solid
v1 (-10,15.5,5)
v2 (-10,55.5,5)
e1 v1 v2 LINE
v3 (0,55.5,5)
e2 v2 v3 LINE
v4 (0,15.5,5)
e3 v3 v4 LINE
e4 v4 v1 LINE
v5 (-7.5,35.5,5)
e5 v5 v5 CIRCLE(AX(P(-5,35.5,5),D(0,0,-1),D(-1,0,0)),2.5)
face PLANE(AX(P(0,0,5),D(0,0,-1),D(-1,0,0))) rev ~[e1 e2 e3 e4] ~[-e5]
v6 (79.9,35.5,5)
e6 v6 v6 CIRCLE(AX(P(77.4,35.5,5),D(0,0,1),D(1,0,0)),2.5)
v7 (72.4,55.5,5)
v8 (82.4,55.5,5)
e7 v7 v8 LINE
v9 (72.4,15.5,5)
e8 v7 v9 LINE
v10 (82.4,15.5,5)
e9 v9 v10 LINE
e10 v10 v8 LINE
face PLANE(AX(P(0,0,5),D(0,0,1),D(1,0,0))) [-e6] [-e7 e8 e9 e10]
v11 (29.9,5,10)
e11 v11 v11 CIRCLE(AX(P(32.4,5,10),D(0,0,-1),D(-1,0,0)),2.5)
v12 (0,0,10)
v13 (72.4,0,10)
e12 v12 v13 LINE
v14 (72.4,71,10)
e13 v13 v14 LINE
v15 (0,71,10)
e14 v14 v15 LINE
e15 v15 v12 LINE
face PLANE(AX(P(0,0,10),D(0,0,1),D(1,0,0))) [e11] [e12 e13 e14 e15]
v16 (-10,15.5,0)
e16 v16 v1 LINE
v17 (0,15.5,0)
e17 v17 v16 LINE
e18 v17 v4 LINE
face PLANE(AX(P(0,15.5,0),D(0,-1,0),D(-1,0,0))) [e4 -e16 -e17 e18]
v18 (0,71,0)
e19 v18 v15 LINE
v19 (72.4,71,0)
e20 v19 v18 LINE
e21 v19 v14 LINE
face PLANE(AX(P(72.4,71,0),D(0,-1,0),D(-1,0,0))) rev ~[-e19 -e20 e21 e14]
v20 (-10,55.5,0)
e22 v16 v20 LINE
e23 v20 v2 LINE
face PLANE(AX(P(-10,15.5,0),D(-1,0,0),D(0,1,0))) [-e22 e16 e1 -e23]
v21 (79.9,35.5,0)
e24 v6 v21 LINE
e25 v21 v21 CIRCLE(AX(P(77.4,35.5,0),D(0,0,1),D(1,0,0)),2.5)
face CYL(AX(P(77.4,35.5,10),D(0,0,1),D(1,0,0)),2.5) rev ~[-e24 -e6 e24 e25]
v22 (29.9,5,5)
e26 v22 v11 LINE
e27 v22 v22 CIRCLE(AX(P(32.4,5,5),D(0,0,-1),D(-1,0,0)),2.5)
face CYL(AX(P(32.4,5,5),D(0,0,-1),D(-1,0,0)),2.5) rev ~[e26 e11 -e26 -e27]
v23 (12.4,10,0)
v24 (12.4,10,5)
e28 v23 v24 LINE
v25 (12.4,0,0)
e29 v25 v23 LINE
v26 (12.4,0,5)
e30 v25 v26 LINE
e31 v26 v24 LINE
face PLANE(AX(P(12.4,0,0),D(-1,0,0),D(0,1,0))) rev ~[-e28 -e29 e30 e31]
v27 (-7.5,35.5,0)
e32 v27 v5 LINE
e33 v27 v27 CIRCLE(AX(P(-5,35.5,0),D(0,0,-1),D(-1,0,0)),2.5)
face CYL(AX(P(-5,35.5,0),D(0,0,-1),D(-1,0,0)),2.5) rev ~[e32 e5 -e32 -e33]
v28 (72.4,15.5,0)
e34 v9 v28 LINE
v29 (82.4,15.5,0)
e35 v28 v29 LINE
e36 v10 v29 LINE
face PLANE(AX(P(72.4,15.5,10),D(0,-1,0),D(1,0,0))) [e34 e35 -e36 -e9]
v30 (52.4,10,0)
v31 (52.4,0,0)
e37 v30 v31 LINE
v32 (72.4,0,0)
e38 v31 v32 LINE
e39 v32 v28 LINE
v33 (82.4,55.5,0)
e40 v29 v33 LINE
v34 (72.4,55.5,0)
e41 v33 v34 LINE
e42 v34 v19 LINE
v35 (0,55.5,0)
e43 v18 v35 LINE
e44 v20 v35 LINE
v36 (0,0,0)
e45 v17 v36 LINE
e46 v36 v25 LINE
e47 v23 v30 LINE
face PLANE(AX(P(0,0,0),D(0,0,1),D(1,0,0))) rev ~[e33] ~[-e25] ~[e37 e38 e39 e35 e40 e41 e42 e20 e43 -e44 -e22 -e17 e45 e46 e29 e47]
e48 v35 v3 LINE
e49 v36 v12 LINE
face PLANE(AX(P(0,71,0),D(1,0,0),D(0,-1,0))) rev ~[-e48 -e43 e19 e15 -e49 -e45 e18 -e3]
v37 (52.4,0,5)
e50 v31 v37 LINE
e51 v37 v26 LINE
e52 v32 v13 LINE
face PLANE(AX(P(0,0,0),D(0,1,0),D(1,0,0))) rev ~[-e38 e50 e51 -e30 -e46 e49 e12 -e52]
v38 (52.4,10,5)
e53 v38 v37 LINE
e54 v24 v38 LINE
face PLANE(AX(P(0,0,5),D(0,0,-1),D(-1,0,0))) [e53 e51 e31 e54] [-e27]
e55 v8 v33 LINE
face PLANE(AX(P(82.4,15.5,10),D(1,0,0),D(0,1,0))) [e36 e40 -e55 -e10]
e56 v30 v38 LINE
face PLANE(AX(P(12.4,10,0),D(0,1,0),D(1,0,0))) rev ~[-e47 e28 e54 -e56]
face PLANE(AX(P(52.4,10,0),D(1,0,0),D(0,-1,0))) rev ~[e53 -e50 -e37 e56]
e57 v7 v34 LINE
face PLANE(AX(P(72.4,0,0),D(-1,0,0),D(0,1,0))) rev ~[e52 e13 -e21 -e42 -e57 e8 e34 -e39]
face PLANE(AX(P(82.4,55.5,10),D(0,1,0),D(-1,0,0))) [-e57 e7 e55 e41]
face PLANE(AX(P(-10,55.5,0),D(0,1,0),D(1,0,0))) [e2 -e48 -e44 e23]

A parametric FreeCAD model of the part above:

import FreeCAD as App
import Part
import Sketcher
from FreeCAD import Vector

doc = App.newDocument("Part")
body = doc.addObject("PartDesign::Body", "Body")

# Sketch on XY plane
sketch1 = body.newObject("Sketcher::SketchObject", "Sketch")
sketch1.AttachmentSupport = (doc.getObject("XY_Plane"), [""])
sketch1.MapMode = "FlatFace"
sketch1.addGeometry([
    Part.LineSegment(Vector(0, 71, 0), Vector(0, 0, 0)),
    Part.LineSegment(Vector(0, 0, 0), Vector(72, 0, 0)),
    Part.LineSegment(Vector(72, 0, 0), Vector(72, 71, 0)),
    Part.LineSegment(Vector(72, 71, 0), Vector(0, 71, 0)),
], False)
sketch1.addConstraint([
    Sketcher.Constraint("Coincident", 0, 2, 1, 1),
    Sketcher.Constraint("Coincident", 1, 2, 2, 1),
    Sketcher.Constraint("Coincident", 2, 2, 3, 1),
    Sketcher.Constraint("Coincident", 3, 2, 0, 1),
    Sketcher.Constraint("Vertical", 0),
    Sketcher.Constraint("Horizontal", 1),
    Sketcher.Constraint("Vertical", 2),
    Sketcher.Constraint("Horizontal", 3),
    Sketcher.Constraint("Coincident", 0, 2, -1, 1),
    Sketcher.Constraint("DistanceY", 0, 2, 0, 1, 71.0),
    Sketcher.Constraint("DistanceX", 1, 1, 1, 2, 72.4),
])
pad1 = body.newObject("PartDesign::Pad", "Pad")
pad1.Profile = sketch1
pad1.Length = 10

# Sketch on XY plane
sketch2 = body.newObject("Sketcher::SketchObject", "Sketch001")
sketch2.AttachmentSupport = (doc.getObject("XY_Plane"), [""])
sketch2.MapMode = "FlatFace"
sketch2.AttachmentOffset = App.Placement(Vector(0, 0, 10), App.Rotation())
sketch2.addGeometry([
    Part.LineSegment(Vector(72.4, 55.5, 0), Vector(72.4, 15.5, 0)),  # 0
    Part.LineSegment(Vector(72.4, 15.5, 0), Vector(82.4, 15.5, 0)),  # 1
    Part.LineSegment(Vector(82.4, 15.5, 0), Vector(82.4, 55.5, 0)),  # 2
    Part.LineSegment(Vector(82.4, 55.5, 0), Vector(72.4, 55.5, 0)),  # 3
    Part.Circle(Vector(77.4, 35.5, 0), Vector(0, 0, 1), 2.5),  # 4
], False)
sketch2.addConstraint([
    Sketcher.Constraint("Coincident", 0, 2, 1, 1),
    Sketcher.Constraint("Coincident", 1, 2, 2, 1),
    Sketcher.Constraint("Coincident", 2, 2, 3, 1),
    Sketcher.Constraint("Coincident", 3, 2, 0, 1),
    Sketcher.Constraint("Vertical", 0),
    Sketcher.Constraint("Horizontal", 1),
    Sketcher.Constraint("Vertical", 2),
    Sketcher.Constraint("Horizontal", 3),
    Sketcher.Constraint("Diameter", 4, 5.0),
    Sketcher.Constraint("DistanceX", 1, 1, 1, 2, 10.0),
    Sketcher.Constraint("DistanceY", 0, 2, 0, 1, 40.0),
    Sketcher.Constraint("DistanceX", 0, 2, 4, 3, 5.0),
    Sketcher.Constraint("DistanceY", -1, 1, 0, 2, 15.5),
    Sketcher.Constraint("DistanceY", 0, 2, 4, 3, 20.0),
    Sketcher.Constraint("DistanceX", -1, 1, 4, 3, 77.4),
])
pad2 = body.newObject("PartDesign::Pad", "Pad001")
pad2.Profile = sketch2
pad2.Length = 10
pad2.Reversed = True

# Sketch on XY plane
sketch3 = body.newObject("Sketcher::SketchObject", "Sketch002")
sketch3.AttachmentSupport = (doc.getObject("XY_Plane"), [""])
sketch3.MapMode = "FlatFace"
sketch3.AttachmentOffset = App.Placement(Vector(0, 0, 10), App.Rotation())
sketch3.addGeometry([
    Part.LineSegment(Vector(82, 56, 0), Vector(72, 56, 0)),
    Part.LineSegment(Vector(72, 56, 0), Vector(72, 16, 0)),
    Part.LineSegment(Vector(72, 16, 0), Vector(82, 16, 0)),
    Part.LineSegment(Vector(82, 16, 0), Vector(82, 56, 0)),
], False)
sketch3.addConstraint([
    Sketcher.Constraint("Coincident", 0, 2, 1, 1),
    Sketcher.Constraint("Coincident", 1, 2, 2, 1),
    Sketcher.Constraint("Coincident", 2, 2, 3, 1),
    Sketcher.Constraint("Coincident", 3, 2, 0, 1),
    Sketcher.Constraint("Horizontal", 0),
    Sketcher.Constraint("Vertical", 1),
    Sketcher.Constraint("Horizontal", 2),
    Sketcher.Constraint("Vertical", 3),
    Sketcher.Constraint("DistanceX", 0, 2, 0, 1, 10.0),
    Sketcher.Constraint("DistanceY", 1, 2, 1, 1, 40.0),
    Sketcher.Constraint("DistanceX", -1, 1, 0, 2, 72.4),
    Sketcher.Constraint("DistanceY", -1, 1, 0, 2, 55.5),
])
pocket1 = body.newObject("PartDesign::Pocket", "Pocket")
pocket1.Profile = sketch3
pocket1.Length = 5

# Sketch on XY plane
sketch4 = body.newObject("Sketcher::SketchObject", "Sketch003")
sketch4.AttachmentSupport = (doc.getObject("XY_Plane"), [""])
sketch4.MapMode = "FlatFace"
sketch4.addGeometry([
    Part.LineSegment(Vector(12, 0, 0), Vector(12, 10, 0)),
    Part.LineSegment(Vector(12, 10, 0), Vector(52, 10, 0)),
    Part.LineSegment(Vector(52, 10, 0), Vector(52, 0, 0)),
    Part.LineSegment(Vector(52, 0, 0), Vector(12, 0, 0)),
], False)
sketch4.addConstraint([
    Sketcher.Constraint("Coincident", 0, 2, 1, 1),
    Sketcher.Constraint("Coincident", 1, 2, 2, 1),
    Sketcher.Constraint("Coincident", 2, 2, 3, 1),
    Sketcher.Constraint("Coincident", 3, 2, 0, 1),
    Sketcher.Constraint("Vertical", 0),
    Sketcher.Constraint("Horizontal", 1),
    Sketcher.Constraint("Vertical", 2),
    Sketcher.Constraint("Horizontal", 3),
    Sketcher.Constraint("PointOnObject", 2, 2, -1),
    Sketcher.Constraint("DistanceX", 1, 1, 1, 2, 40.0),
    Sketcher.Constraint("DistanceY", 0, 1, 0, 2, 10.0),
    Sketcher.Constraint("DistanceX", -1, 1, 0, 2, 12.4),
])
pocket2 = body.newObject("PartDesign::Pocket", "Pocket001")
pocket2.Profile = sketch4
pocket2.Length = 5
pocket2.Reversed = True

# Sketch on XY plane
sketch5 = body.newObject("Sketcher::SketchObject", "Sketch004")
sketch5.AttachmentSupport = (doc.getObject("XY_Plane"), [""])
sketch5.MapMode = "FlatFace"
sketch5.AttachmentOffset = App.Placement(Vector(0, 0, 5), App.Rotation())
sketch5.addGeometry(Part.Circle(Vector(32.4, 5, 0), Vector(0, 0, 1), 2.5), False)
sketch5.addConstraint([
    Sketcher.Constraint("Diameter", 0, 5.0),
    Sketcher.Constraint("DistanceY", -1, 1, 0, 3, 5.0),
    Sketcher.Constraint("DistanceX", -1, 1, 0, 3, 32.4),
])
pocket3 = body.newObject("PartDesign::Pocket", "Pocket002")
pocket3.Profile = sketch5
pocket3.Type = "ThroughAll"
pocket3.Reversed = True

# Sketch on XY plane
sketch6 = body.newObject("Sketcher::SketchObject", "Sketch005")
sketch6.AttachmentSupport = (doc.getObject("XY_Plane"), [""])
sketch6.MapMode = "FlatFace"
sketch6.addGeometry([
    Part.LineSegment(Vector(-10, 55.5, 0), Vector(0, 55.5, 0)),  # 0
    Part.LineSegment(Vector(0, 55.5, 0), Vector(0, 15.5, 0)),  # 1
    Part.LineSegment(Vector(0, 15.5, 0), Vector(-10, 15.5, 0)),  # 2
    Part.LineSegment(Vector(-10, 15.5, 0), Vector(-10, 55.5, 0)),  # 3
    Part.Circle(Vector(-5, 35.5, 0), Vector(0, 0, 1), 2.5),  # 4
], False)
sketch6.addConstraint([
    Sketcher.Constraint("Coincident", 0, 2, 1, 1),
    Sketcher.Constraint("Coincident", 1, 2, 2, 1),
    Sketcher.Constraint("Coincident", 2, 2, 3, 1),
    Sketcher.Constraint("Coincident", 3, 2, 0, 1),
    Sketcher.Constraint("Horizontal", 0),
    Sketcher.Constraint("Vertical", 1),
    Sketcher.Constraint("Horizontal", 2),
    Sketcher.Constraint("Vertical", 3),
    Sketcher.Constraint("PointOnObject", 0, 2, -2),
    Sketcher.Constraint("Diameter", 4, 5.0),
    Sketcher.Constraint("DistanceX", 0, 1, 0, 2, 10.0),
    Sketcher.Constraint("DistanceY", 1, 2, 1, 1, 40.0),
    Sketcher.Constraint("DistanceX", 4, 3, -1, 1, 5.0),
    Sketcher.Constraint("DistanceY", 4, 3, 0, 2, 20.0),
    Sketcher.Constraint("DistanceY", -1, 1, 4, 3, 35.5),
])
pad3 = body.newObject("PartDesign::Pad", "Pad002")
pad3.Profile = sketch6
pad3.Length = 5

doc.recompute()
